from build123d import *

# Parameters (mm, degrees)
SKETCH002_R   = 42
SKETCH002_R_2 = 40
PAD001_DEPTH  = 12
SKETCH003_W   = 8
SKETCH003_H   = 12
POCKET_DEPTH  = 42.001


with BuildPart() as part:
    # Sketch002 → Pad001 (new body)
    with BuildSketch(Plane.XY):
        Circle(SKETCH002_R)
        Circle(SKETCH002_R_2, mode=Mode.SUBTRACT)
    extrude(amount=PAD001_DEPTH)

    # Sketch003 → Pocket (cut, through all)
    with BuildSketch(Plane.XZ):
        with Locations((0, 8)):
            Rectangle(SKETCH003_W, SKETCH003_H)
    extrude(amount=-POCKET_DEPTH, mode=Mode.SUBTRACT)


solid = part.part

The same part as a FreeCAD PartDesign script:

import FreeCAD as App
import Part
import Sketcher

V = App.Vector
Q = App.Units.Quantity


def add_polygon(sketch, points):
    """Adds a closed chain of lines whose ends are joined by coincident constraints."""
    first, n = sketch.GeometryCount, len(points)
    for a, b in zip(points, points[1:] + points[:1]):
        sketch.addGeometry(Part.LineSegment(App.Vector(*a, 0), App.Vector(*b, 0)), False)
    for i in range(n):
        sketch.addConstraint(Sketcher.Constraint("Coincident", first + i, 2, first + (i + 1) % n, 1))

doc = App.newDocument("Part")
params = doc.addObject("Spreadsheet::Sheet", "Params")
for row, (alias, value) in enumerate([
    ("sketch1_diameter", "84 mm"),
    ("sketch1_diameter2", "80 mm"),
    ("pad1_length", "12 mm"),
    ("sketch2_width", "8 mm"),
    ("sketch2_height", "12 mm"),
], start=1):
    params.set(f"A{row}", alias)
    params.set(f"B{row}", "=" + value)
    params.setAlias(f"B{row}", alias)

body = doc.addObject("PartDesign::Body", "Body")

sketch1 = body.newObject("Sketcher::SketchObject", "Sketch")
sketch1.AttachmentSupport = (doc.getObject("XY_Plane"), [""])
sketch1.MapMode = "FlatFace"
sketch1.addGeometry(Part.Circle(V(0, 0, 0), V(0, 0, 1), 42), False)
sketch1.addGeometry(Part.Circle(V(0, 0, 0), V(0, 0, 1), 40), False)
sketch1.addConstraint(Sketcher.Constraint("Coincident", 0, 3, -1, 1))
sketch1.addConstraint(Sketcher.Constraint("Coincident", 1, 3, -1, 1))
sketch1.addConstraint(Sketcher.Constraint("Diameter", 0, Q("84 mm")))
sketch1.addConstraint(Sketcher.Constraint("Diameter", 1, Q("80 mm")))
sketch1.setExpression("Constraints[2]", "Params.sketch1_diameter")
sketch1.setExpression("Constraints[3]", "Params.sketch1_diameter2")
pad1 = body.newObject("PartDesign::Pad", "Pad")
pad1.Profile = sketch1
pad1.setExpression("Length", "Params.pad1_length")

sketch2 = body.newObject("Sketcher::SketchObject", "Sketch001")
sketch2.AttachmentSupport = (doc.getObject("XZ_Plane"), [""])
sketch2.MapMode = "FlatFace"
add_polygon(sketch2, [(-4, 14), (-4, 2), (4, 2), (4, 14)])
sketch2.addConstraint(Sketcher.Constraint("Vertical", 0))
sketch2.addConstraint(Sketcher.Constraint("Horizontal", 1))
sketch2.addConstraint(Sketcher.Constraint("Vertical", 2))
sketch2.addConstraint(Sketcher.Constraint("Horizontal", 3))
sketch2.addConstraint(Sketcher.Constraint("DistanceX", 1, 1, 1, 2, Q("8 mm")))
sketch2.addConstraint(Sketcher.Constraint("DistanceY", 0, 2, 0, 1, Q("12 mm")))
sketch2.addConstraint(Sketcher.Constraint("DistanceX", 0, 2, -1, 1, Q("4 mm")))
sketch2.addConstraint(Sketcher.Constraint("DistanceY", -1, 1, 0, 2, Q("2 mm")))
sketch2.setExpression("Constraints[8]", "Params.sketch2_width")
sketch2.setExpression("Constraints[9]", "Params.sketch2_height")
pocket1 = body.newObject("PartDesign::Pocket", "Pocket")
pocket1.Profile = sketch2
pocket1.Type = "ThroughAll"

doc.recompute()
